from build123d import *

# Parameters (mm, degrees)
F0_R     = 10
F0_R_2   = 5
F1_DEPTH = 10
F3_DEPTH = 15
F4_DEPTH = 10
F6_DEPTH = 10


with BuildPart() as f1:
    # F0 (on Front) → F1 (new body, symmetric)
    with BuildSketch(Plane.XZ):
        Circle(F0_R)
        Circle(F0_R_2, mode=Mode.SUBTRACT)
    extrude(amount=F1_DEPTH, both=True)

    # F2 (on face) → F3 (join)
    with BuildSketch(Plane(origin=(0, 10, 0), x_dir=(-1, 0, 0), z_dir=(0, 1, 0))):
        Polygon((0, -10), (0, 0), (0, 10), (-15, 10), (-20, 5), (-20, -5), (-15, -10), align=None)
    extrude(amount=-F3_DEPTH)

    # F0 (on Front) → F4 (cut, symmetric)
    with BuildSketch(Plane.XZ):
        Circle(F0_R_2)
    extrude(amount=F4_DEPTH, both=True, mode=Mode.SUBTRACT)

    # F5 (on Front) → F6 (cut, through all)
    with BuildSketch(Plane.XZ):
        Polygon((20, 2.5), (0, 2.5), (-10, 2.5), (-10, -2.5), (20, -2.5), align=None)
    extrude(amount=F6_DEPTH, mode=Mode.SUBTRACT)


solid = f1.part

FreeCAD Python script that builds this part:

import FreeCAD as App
import Part
import Sketcher

V = App.Vector

doc = App.newDocument("Part")
body = doc.addObject("PartDesign::Body", "Body")

sketch1 = body.newObject("Sketcher::SketchObject", "Sketch")
sketch1.AttachmentSupport = (doc.getObject("XZ_Plane"), [""])
sketch1.MapMode = "FlatFace"
sketch1.addGeometry(Part.Circle(V(0, 0, 0), V(0, 0, 1), 10), False)
sketch1.addGeometry(Part.Circle(V(0, 0, 0), V(0, 0, 1), 5), False)
sketch1.addConstraint(Sketcher.Constraint("Coincident", 0, 3, -1, 1))
sketch1.addConstraint(Sketcher.Constraint("Coincident", 1, 3, -1, 1))
sketch1.addConstraint(Sketcher.Constraint("Diameter", 0, 20.0))
sketch1.addConstraint(Sketcher.Constraint("Diameter", 1, 10.0))
pad1 = body.newObject("PartDesign::Pad", "Pad")
pad1.Profile = sketch1
pad1.Length = 20
pad1.Midplane = True

sketch2 = body.newObject("Sketcher::SketchObject", "Sketch001")
sketch2.AttachmentSupport = (doc.getObject("XZ_Plane"), [""])
sketch2.MapMode = "FlatFace"
sketch2.AttachmentOffset = App.Placement(V(0, 0, -10), App.Rotation())
sketch2.addGeometry(Part.LineSegment(V(0, -10, 0), V(0, 10, 0)), False)
sketch2.addGeometry(Part.LineSegment(V(0, 10, 0), V(15, 10, 0)), False)
sketch2.addGeometry(Part.LineSegment(V(15, 10, 0), V(20, 5, 0)), False)
sketch2.addGeometry(Part.LineSegment(V(20, 5, 0), V(20, -5, 0)), False)
sketch2.addGeometry(Part.LineSegment(V(20, -5, 0), V(15, -10, 0)), False)
sketch2.addGeometry(Part.LineSegment(V(15, -10, 0), V(0, -10, 0)), False)
sketch2.addConstraint(Sketcher.Constraint("Coincident", 0, 2, 1, 1))
sketch2.addConstraint(Sketcher.Constraint("Coincident", 1, 2, 2, 1))
sketch2.addConstraint(Sketcher.Constraint("Coincident", 2, 2, 3, 1))
sketch2.addConstraint(Sketcher.Constraint("Coincident", 3, 2, 4, 1))
sketch2.addConstraint(Sketcher.Constraint("Coincident", 4, 2, 5, 1))
sketch2.addConstraint(Sketcher.Constraint("Coincident", 5, 2, 0, 1))
sketch2.addConstraint(Sketcher.Constraint("Vertical", 0))
sketch2.addConstraint(Sketcher.Constraint("Horizontal", 1))
sketch2.addConstraint(Sketcher.Constraint("Vertical", 3))
sketch2.addConstraint(Sketcher.Constraint("Horizontal", 5))
sketch2.addConstraint(Sketcher.Constraint("Symmetric", 0, 2, 5, 2, -1, 1))
sketch2.addConstraint(Sketcher.Constraint("Perpendicular", 2, 4))
sketch2.addConstraint(Sketcher.Constraint("Vertical", 1, 2, 4, 2))
sketch2.addConstraint(Sketcher.Constraint("Equal", 2, 4))
sketch2.addConstraint(Sketcher.Constraint("DistanceX", 1, 1, 1, 2, 15.0))
sketch2.addConstraint(Sketcher.Constraint("DistanceY", 0, 1, 0, 2, 20.0))
sketch2.addConstraint(Sketcher.Constraint("DistanceY", 3, 2, 3, 1, 10.0))
pad2 = body.newObject("PartDesign::Pad", "Pad001")
pad2.Profile = sketch2
pad2.Length = 15

sketch3 = body.newObject("Sketcher::SketchObject", "Sketch002")
sketch3.AttachmentSupport = (doc.getObject("XZ_Plane"), [""])
sketch3.MapMode = "FlatFace"
sketch3.addGeometry(Part.Circle(V(0, 0, 0), V(0, 0, 1), 5), False)
sketch3.addConstraint(Sketcher.Constraint("Coincident", 0, 3, -1, 1))
sketch3.addConstraint(Sketcher.Constraint("Diameter", 0, 10.0))
pocket1 = body.newObject("PartDesign::Pocket", "Pocket")
pocket1.Profile = sketch3
pocket1.Length = 20
pocket1.Midplane = True

sketch4 = body.newObject("Sketcher::SketchObject", "Sketch003")
sketch4.AttachmentSupport = (doc.getObject("XZ_Plane"), [""])
sketch4.MapMode = "FlatFace"
sketch4.addGeometry(Part.LineSegment(V(20, 2, 0), V(-10, 2, 0)), False)
sketch4.addGeometry(Part.LineSegment(V(-10, 2, 0), V(-10, -2, 0)), False)
sketch4.addGeometry(Part.LineSegment(V(-10, -2, 0), V(20, -2, 0)), False)
sketch4.addGeometry(Part.LineSegment(V(20, -2, 0), V(20, 2, 0)), False)
sketch4.addConstraint(Sketcher.Constraint("Coincident", 0, 2, 1, 1))
sketch4.addConstraint(Sketcher.Constraint("Coincident", 1, 2, 2, 1))
sketch4.addConstraint(Sketcher.Constraint("Coincident", 2, 2, 3, 1))
sketch4.addConstraint(Sketcher.Constraint("Coincident", 3, 2, 0, 1))
sketch4.addConstraint(Sketcher.Constraint("Horizontal", 0))
sketch4.addConstraint(Sketcher.Constraint("Vertical", 1))
sketch4.addConstraint(Sketcher.Constraint("Horizontal", 2))
sketch4.addConstraint(Sketcher.Constraint("Vertical", 3))
sketch4.addConstraint(Sketcher.Constraint("DistanceX", 0, 2, 0, 1, 30.0))
sketch4.addConstraint(Sketcher.Constraint("DistanceY", 1, 2, 1, 1, 5.0))
sketch4.addConstraint(Sketcher.Constraint("DistanceX", 0, 2, -1, 1, 10.0))
sketch4.addConstraint(Sketcher.Constraint("DistanceY", -1, 1, 0, 2, 2.5))
pocket2 = body.newObject("PartDesign::Pocket", "Pocket001")
pocket2.Profile = sketch4
pocket2.Type = "ThroughAll"
pocket2.Reversed = True

doc.recompute()
